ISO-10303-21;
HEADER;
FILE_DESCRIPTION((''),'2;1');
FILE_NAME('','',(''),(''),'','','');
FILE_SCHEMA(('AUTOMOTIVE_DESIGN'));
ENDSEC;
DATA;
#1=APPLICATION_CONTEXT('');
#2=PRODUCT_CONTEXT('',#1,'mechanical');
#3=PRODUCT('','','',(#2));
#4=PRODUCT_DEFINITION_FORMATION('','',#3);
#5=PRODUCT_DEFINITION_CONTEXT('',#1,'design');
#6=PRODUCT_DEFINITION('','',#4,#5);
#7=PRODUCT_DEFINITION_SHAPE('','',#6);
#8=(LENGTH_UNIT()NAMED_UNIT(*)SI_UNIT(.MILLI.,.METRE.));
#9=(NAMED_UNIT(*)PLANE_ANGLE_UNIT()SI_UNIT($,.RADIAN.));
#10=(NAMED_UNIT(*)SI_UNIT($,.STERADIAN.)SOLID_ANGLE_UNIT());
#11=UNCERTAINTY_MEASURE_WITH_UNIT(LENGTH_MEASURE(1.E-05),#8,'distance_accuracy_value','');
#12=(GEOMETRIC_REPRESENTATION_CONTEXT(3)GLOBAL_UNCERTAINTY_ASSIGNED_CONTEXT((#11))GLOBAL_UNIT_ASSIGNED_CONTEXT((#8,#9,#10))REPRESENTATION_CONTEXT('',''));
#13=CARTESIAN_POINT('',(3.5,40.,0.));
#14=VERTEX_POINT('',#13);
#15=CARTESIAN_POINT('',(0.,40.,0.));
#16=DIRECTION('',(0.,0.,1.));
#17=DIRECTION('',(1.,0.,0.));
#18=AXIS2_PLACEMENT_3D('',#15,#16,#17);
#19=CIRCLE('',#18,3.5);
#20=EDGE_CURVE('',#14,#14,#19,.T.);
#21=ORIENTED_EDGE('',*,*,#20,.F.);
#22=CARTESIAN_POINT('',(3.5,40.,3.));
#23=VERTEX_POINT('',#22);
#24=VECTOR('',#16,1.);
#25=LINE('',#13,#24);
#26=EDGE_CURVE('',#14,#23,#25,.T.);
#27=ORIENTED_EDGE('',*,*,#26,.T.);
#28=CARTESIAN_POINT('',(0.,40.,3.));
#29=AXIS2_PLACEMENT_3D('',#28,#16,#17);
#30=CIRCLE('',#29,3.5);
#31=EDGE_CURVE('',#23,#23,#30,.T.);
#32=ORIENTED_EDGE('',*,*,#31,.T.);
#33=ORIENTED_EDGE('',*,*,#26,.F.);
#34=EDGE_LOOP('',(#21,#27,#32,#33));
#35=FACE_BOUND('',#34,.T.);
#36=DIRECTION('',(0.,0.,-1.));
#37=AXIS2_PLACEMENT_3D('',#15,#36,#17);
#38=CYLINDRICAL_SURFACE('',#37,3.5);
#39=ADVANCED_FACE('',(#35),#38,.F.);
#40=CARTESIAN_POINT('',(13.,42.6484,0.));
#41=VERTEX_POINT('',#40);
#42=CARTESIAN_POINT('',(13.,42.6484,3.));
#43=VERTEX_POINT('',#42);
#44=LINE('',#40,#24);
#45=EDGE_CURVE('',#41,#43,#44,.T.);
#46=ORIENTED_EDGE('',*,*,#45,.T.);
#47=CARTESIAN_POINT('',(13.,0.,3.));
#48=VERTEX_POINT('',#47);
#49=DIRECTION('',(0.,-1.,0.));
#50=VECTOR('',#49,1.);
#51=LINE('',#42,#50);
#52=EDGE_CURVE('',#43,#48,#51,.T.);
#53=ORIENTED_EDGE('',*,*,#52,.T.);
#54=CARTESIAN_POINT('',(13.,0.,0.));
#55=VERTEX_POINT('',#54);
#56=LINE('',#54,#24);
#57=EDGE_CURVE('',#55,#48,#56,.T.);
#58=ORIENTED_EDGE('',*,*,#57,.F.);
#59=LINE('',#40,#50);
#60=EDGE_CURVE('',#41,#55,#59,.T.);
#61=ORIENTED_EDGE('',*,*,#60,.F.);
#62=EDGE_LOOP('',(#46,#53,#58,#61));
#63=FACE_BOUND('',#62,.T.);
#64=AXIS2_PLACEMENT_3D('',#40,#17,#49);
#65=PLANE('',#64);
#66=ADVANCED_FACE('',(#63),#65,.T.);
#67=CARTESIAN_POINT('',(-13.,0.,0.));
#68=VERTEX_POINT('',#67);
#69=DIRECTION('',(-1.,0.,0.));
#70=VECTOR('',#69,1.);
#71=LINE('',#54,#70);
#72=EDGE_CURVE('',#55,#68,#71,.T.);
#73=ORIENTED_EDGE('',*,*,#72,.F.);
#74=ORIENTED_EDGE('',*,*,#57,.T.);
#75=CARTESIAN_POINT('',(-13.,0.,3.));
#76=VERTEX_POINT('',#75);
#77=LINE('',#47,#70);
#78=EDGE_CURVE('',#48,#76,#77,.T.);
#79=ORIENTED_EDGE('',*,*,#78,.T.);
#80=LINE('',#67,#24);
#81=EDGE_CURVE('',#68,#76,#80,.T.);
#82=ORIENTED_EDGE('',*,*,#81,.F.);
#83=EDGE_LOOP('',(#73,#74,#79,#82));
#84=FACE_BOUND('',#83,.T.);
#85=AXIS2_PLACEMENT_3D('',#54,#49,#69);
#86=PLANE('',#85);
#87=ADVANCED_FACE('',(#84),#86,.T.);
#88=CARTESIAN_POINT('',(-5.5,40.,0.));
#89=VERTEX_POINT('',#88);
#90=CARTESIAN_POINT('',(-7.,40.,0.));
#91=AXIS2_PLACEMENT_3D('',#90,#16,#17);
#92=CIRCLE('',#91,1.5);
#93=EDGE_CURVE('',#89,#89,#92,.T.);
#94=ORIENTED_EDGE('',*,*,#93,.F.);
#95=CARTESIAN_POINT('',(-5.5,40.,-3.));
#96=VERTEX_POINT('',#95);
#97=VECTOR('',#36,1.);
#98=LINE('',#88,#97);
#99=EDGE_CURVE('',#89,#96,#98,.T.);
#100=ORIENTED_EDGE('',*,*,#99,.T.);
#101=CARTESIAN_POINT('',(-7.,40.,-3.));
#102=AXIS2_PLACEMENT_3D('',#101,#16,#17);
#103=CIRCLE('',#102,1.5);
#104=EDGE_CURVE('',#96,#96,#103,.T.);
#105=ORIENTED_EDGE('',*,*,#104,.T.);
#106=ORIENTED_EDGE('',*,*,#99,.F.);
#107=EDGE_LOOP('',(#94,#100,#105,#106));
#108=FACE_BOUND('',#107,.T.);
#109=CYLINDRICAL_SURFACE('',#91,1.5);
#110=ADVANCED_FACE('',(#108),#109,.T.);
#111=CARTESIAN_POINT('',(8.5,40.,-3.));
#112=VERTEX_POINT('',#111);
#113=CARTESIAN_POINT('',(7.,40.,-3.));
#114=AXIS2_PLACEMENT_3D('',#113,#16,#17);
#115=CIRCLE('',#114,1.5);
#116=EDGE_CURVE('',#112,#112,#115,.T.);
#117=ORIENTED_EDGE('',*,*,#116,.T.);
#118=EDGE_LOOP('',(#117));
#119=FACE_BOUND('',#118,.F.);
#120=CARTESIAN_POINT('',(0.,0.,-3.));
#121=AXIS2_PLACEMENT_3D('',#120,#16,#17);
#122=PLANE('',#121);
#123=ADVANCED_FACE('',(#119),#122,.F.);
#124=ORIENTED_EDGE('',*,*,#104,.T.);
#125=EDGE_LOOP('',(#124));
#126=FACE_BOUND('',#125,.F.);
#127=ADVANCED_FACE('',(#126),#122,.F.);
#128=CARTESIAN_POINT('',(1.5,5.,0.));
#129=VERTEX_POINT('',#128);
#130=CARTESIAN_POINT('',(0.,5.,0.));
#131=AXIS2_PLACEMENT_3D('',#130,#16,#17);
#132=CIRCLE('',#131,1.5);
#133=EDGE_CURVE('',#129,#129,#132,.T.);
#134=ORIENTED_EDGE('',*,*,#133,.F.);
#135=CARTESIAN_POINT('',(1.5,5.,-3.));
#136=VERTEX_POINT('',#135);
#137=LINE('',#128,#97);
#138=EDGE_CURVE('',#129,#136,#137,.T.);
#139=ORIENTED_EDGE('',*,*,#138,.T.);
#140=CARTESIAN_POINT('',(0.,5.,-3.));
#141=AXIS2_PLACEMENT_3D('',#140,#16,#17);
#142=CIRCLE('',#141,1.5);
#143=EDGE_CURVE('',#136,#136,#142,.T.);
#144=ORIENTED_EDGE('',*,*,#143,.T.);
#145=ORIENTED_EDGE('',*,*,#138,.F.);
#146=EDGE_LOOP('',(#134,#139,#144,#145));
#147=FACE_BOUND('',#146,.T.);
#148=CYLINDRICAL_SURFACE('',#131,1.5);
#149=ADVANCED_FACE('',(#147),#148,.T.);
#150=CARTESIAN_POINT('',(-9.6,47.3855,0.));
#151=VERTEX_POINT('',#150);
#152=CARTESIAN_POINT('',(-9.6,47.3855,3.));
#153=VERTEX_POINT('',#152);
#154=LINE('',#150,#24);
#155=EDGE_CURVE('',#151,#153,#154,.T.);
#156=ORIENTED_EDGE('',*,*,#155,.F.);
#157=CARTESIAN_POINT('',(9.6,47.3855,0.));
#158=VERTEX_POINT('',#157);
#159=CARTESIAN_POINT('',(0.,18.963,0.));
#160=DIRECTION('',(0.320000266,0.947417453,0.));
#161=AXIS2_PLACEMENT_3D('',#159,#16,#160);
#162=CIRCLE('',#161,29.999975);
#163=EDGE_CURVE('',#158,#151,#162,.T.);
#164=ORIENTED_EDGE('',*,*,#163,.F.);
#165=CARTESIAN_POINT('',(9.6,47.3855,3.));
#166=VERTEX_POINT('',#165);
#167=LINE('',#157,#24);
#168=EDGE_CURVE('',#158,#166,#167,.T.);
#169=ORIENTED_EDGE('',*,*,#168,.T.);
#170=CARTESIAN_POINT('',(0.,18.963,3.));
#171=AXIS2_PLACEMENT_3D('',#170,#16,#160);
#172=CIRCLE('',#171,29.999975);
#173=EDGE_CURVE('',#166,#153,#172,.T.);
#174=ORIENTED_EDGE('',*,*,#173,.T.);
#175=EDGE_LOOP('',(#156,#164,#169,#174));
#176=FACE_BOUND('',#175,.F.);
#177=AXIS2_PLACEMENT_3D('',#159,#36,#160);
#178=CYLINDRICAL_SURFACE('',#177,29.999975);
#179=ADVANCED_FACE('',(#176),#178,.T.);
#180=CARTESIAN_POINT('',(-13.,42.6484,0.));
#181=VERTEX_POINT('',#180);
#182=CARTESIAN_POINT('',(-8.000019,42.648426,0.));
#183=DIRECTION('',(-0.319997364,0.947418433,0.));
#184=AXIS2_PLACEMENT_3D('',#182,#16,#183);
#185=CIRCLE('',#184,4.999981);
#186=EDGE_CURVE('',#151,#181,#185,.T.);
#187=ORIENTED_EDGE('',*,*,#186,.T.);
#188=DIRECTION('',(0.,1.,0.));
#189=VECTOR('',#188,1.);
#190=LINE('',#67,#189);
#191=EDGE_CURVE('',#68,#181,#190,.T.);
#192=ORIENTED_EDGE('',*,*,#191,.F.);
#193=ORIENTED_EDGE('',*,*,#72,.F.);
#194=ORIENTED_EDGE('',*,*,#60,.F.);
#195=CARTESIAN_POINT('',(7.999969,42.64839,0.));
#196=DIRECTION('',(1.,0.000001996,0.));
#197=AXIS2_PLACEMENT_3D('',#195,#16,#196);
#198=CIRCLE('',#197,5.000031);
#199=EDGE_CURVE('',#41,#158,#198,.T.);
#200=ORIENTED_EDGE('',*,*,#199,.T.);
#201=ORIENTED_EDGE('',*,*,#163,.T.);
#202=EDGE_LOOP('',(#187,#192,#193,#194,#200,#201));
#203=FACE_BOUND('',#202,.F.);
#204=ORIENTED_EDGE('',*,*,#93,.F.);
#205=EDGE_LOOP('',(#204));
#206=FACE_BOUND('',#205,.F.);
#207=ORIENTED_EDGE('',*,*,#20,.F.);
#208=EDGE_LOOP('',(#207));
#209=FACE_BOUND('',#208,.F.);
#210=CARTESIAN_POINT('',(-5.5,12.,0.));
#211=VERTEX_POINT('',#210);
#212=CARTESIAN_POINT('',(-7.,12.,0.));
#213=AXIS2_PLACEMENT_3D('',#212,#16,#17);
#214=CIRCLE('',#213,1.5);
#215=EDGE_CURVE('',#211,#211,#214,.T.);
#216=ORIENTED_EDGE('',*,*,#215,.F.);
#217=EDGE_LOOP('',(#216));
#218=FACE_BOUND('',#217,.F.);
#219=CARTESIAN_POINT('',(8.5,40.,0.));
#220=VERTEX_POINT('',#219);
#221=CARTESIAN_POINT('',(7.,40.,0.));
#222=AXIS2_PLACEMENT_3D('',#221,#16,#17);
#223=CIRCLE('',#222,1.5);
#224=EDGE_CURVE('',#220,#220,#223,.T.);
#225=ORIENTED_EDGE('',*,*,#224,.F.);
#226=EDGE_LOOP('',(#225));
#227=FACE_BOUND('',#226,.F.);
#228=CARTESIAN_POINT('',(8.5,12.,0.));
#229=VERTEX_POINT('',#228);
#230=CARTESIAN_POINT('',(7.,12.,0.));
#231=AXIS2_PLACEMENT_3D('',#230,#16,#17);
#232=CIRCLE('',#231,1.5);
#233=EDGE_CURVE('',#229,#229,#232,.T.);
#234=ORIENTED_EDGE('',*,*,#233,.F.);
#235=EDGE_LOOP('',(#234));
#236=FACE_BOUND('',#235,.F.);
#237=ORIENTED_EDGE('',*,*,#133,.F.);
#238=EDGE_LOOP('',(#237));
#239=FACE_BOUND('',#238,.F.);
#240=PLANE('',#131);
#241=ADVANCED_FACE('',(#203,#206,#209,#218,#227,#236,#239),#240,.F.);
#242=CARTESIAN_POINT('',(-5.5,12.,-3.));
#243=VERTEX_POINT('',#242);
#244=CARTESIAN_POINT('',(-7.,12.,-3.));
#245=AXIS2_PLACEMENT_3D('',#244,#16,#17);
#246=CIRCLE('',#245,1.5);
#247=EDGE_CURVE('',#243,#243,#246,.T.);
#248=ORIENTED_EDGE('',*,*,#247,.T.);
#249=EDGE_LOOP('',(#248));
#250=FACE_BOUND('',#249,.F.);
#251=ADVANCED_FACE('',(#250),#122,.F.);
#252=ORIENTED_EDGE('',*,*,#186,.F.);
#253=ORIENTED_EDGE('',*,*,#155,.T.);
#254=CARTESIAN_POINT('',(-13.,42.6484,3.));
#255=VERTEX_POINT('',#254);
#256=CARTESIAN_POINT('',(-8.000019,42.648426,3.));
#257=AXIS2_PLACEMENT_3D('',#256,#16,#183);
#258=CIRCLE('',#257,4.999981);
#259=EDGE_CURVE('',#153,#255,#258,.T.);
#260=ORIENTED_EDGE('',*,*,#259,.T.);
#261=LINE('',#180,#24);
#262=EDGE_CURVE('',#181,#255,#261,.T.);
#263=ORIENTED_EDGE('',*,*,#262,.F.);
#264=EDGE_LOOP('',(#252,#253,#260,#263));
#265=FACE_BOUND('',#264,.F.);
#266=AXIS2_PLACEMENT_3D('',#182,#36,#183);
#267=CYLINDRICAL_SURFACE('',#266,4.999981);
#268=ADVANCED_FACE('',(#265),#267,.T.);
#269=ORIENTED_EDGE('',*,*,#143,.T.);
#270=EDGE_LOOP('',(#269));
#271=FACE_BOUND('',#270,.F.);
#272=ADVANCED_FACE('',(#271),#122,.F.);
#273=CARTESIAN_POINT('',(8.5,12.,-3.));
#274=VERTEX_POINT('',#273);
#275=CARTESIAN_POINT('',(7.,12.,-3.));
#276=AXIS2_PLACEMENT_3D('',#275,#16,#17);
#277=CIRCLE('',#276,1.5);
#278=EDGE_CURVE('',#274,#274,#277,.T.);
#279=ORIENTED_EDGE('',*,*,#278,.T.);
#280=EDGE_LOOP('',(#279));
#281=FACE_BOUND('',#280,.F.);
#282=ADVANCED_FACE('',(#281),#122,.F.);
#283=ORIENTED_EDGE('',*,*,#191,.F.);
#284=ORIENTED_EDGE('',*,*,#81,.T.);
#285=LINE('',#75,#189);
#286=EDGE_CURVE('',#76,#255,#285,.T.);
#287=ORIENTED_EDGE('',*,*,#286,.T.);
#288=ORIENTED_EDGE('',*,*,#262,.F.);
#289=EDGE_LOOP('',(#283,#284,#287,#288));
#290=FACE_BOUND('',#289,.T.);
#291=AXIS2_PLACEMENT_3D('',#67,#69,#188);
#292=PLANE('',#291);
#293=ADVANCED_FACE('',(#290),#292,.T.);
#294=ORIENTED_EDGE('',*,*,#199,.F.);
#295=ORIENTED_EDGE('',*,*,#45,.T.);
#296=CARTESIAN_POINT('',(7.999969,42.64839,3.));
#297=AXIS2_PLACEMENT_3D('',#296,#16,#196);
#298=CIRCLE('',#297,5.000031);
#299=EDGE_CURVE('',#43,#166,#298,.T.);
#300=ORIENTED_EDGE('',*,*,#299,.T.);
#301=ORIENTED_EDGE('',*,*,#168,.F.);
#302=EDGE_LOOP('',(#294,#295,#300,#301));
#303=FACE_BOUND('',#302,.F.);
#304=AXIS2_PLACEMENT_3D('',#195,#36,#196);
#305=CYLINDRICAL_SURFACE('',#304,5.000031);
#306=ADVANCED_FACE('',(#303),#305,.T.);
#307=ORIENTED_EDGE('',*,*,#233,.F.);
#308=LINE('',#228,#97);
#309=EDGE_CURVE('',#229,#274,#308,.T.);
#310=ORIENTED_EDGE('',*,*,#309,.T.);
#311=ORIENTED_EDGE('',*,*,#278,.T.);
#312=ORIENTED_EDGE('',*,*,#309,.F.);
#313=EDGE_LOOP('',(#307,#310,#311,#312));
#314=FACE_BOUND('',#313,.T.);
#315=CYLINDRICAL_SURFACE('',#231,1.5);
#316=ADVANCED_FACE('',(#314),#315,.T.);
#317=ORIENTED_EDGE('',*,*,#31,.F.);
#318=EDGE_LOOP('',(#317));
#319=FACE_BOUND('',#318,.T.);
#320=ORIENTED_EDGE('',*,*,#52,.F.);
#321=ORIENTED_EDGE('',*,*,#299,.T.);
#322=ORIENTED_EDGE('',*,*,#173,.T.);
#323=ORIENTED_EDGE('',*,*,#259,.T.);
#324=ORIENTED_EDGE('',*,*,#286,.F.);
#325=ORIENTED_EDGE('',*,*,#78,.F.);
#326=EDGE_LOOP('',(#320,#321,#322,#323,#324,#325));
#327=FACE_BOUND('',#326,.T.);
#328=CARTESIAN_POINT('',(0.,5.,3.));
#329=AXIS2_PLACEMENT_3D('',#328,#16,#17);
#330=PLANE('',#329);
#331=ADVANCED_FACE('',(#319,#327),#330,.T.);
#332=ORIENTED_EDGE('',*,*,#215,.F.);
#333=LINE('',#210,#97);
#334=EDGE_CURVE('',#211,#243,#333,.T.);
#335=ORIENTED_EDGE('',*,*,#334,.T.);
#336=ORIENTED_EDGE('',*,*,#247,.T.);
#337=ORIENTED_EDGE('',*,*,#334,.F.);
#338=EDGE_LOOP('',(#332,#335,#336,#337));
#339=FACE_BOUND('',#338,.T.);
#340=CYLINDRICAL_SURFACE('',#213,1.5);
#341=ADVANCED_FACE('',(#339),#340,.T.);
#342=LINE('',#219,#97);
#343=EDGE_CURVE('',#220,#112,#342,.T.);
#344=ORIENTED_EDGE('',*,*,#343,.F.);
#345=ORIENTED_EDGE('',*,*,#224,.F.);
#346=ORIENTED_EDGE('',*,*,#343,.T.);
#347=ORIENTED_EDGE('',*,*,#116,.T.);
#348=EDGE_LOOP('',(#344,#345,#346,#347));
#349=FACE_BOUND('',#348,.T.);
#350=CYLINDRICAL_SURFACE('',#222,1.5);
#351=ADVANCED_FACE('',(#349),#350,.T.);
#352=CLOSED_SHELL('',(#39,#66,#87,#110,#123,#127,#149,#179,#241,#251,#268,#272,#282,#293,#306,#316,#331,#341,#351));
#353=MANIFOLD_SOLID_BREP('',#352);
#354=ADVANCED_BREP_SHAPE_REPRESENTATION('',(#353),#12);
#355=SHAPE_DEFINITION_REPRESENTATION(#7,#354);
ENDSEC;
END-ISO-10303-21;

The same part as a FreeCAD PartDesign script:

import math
import FreeCAD as App
import Part
import Sketcher

V = App.Vector

doc = App.newDocument("Part")
body = doc.addObject("PartDesign::Body", "Body")
body.AllowCompound = True

sketch1 = body.newObject("Sketcher::SketchObject", "Sketch")
sketch1.AttachmentSupport = (doc.getObject("XY_Plane"), [""])
sketch1.MapMode = "FlatFace"
sketch1.addGeometry(Part.Circle(V(-7, 12, 0), V(0, 0, 1), 1.5), False)
sketch1.addGeometry(Part.Circle(V(0, 5, 0), V(0, 0, 1), 1.5), False)
sketch1.addGeometry(Part.Circle(V(7, 12, 0), V(0, 0, 1), 1.5), False)
sketch1.addGeometry(Part.Circle(V(7, 40, 0), V(0, 0, 1), 1.5), False)
sketch1.addGeometry(Part.Circle(V(-7, 40, 0), V(0, 0, 1), 1.5), False)
sketch1.addConstraint(Sketcher.Constraint("Equal", 0, 1))
sketch1.addConstraint(Sketcher.Constraint("Equal", 1, 2))
sketch1.addConstraint(Sketcher.Constraint("Equal", 2, 3))
sketch1.addConstraint(Sketcher.Constraint("Equal", 3, 4))
sketch1.addConstraint(Sketcher.Constraint("Symmetric", 0, 3, 2, 3, -2))
sketch1.addConstraint(Sketcher.Constraint("Symmetric", 3, 3, 4, 3, -2))
sketch1.addConstraint(Sketcher.Constraint("PointOnObject", 1, 3, -2))
sketch1.addConstraint(Sketcher.Constraint("Vertical", 2, 3, 3, 3))
sketch1.addConstraint(Sketcher.Constraint("Diameter", 0, 3.0))
sketch1.addConstraint(Sketcher.Constraint("DistanceX", 0, 3, -1, 1, 7.0))
sketch1.addConstraint(Sketcher.Constraint("DistanceY", -1, 1, 0, 3, 12.0))
sketch1.addConstraint(Sketcher.Constraint("DistanceY", -1, 1, 1, 3, 5.0))
sketch1.addConstraint(Sketcher.Constraint("DistanceY", -1, 1, 3, 3, 40.0))
pad1 = body.newObject("PartDesign::Pad", "Pad")
pad1.Profile = sketch1
pad1.Length = 3
pad1.Reversed = True

sketch2 = body.newObject("Sketcher::SketchObject", "Sketch001")
sketch2.AttachmentSupport = (doc.getObject("XY_Plane"), [""])
sketch2.MapMode = "FlatFace"
sketch2.addGeometry(Part.LineSegment(V(-13, 42.6, 0), V(-13, 0, 0)), False)
sketch2.addGeometry(Part.LineSegment(V(-13, 0, 0), V(13, 0, 0)), False)
sketch2.addGeometry(Part.LineSegment(V(13, 0, 0), V(13, 42.6, 0)), False)
sketch2.addGeometry(Part.ArcOfCircle(Part.Circle(V(8, 42.6, 0), V(0, 0, 1), 5), math.radians(0), math.radians(71)), False)
sketch2.addGeometry(Part.ArcOfCircle(Part.Circle(V(0, 19, 0), V(0, 0, 1), 30), math.radians(71), math.radians(109)), False)
sketch2.addGeometry(Part.ArcOfCircle(Part.Circle(V(-8, 42.6, 0), V(0, 0, 1), 5), math.radians(109), math.radians(180)), False)
sketch2.addGeometry(Part.Circle(V(0, 40, 0), V(0, 0, 1), 3.5), False)
sketch2.addConstraint(Sketcher.Constraint("Coincident", 0, 2, 1, 1))
sketch2.addConstraint(Sketcher.Constraint("Coincident", 1, 2, 2, 1))
sketch2.addConstraint(Sketcher.Constraint("Tangent", 2, 2, 3, 1))
sketch2.addConstraint(Sketcher.Constraint("Tangent", 3, 2, 4, 1))
sketch2.addConstraint(Sketcher.Constraint("Tangent", 4, 2, 5, 1))
sketch2.addConstraint(Sketcher.Constraint("Tangent", 5, 2, 0, 1))
sketch2.addConstraint(Sketcher.Constraint("Vertical", 0))
sketch2.addConstraint(Sketcher.Constraint("Horizontal", 1))
sketch2.addConstraint(Sketcher.Constraint("Vertical", 2))
sketch2.addConstraint(Sketcher.Constraint("Equal", 3, 5))
sketch2.addConstraint(Sketcher.Constraint("Symmetric", 0, 2, 1, 2, -1, 1))
sketch2.addConstraint(Sketcher.Constraint("PointOnObject", 4, 3, -2))
sketch2.addConstraint(Sketcher.Constraint("PointOnObject", 6, 3, -2))
sketch2.addConstraint(Sketcher.Constraint("Diameter", 6, 7.0))
sketch2.addConstraint(Sketcher.Constraint("Radius", 3, 5.0))
sketch2.addConstraint(Sketcher.Constraint("Radius", 4, 30.0))
sketch2.addConstraint(Sketcher.Constraint("DistanceX", 1, 1, 1, 2, 26.0))
sketch2.addConstraint(Sketcher.Constraint("DistanceY", -1, 1, 6, 3, 40.0))
sketch2.addConstraint(Sketcher.Constraint("DistanceY", 0, 2, 0, 1, 42.6484))
pad2 = body.newObject("PartDesign::Pad", "Pad001")
pad2.Profile = sketch2
pad2.Length = 3

doc.recompute()
